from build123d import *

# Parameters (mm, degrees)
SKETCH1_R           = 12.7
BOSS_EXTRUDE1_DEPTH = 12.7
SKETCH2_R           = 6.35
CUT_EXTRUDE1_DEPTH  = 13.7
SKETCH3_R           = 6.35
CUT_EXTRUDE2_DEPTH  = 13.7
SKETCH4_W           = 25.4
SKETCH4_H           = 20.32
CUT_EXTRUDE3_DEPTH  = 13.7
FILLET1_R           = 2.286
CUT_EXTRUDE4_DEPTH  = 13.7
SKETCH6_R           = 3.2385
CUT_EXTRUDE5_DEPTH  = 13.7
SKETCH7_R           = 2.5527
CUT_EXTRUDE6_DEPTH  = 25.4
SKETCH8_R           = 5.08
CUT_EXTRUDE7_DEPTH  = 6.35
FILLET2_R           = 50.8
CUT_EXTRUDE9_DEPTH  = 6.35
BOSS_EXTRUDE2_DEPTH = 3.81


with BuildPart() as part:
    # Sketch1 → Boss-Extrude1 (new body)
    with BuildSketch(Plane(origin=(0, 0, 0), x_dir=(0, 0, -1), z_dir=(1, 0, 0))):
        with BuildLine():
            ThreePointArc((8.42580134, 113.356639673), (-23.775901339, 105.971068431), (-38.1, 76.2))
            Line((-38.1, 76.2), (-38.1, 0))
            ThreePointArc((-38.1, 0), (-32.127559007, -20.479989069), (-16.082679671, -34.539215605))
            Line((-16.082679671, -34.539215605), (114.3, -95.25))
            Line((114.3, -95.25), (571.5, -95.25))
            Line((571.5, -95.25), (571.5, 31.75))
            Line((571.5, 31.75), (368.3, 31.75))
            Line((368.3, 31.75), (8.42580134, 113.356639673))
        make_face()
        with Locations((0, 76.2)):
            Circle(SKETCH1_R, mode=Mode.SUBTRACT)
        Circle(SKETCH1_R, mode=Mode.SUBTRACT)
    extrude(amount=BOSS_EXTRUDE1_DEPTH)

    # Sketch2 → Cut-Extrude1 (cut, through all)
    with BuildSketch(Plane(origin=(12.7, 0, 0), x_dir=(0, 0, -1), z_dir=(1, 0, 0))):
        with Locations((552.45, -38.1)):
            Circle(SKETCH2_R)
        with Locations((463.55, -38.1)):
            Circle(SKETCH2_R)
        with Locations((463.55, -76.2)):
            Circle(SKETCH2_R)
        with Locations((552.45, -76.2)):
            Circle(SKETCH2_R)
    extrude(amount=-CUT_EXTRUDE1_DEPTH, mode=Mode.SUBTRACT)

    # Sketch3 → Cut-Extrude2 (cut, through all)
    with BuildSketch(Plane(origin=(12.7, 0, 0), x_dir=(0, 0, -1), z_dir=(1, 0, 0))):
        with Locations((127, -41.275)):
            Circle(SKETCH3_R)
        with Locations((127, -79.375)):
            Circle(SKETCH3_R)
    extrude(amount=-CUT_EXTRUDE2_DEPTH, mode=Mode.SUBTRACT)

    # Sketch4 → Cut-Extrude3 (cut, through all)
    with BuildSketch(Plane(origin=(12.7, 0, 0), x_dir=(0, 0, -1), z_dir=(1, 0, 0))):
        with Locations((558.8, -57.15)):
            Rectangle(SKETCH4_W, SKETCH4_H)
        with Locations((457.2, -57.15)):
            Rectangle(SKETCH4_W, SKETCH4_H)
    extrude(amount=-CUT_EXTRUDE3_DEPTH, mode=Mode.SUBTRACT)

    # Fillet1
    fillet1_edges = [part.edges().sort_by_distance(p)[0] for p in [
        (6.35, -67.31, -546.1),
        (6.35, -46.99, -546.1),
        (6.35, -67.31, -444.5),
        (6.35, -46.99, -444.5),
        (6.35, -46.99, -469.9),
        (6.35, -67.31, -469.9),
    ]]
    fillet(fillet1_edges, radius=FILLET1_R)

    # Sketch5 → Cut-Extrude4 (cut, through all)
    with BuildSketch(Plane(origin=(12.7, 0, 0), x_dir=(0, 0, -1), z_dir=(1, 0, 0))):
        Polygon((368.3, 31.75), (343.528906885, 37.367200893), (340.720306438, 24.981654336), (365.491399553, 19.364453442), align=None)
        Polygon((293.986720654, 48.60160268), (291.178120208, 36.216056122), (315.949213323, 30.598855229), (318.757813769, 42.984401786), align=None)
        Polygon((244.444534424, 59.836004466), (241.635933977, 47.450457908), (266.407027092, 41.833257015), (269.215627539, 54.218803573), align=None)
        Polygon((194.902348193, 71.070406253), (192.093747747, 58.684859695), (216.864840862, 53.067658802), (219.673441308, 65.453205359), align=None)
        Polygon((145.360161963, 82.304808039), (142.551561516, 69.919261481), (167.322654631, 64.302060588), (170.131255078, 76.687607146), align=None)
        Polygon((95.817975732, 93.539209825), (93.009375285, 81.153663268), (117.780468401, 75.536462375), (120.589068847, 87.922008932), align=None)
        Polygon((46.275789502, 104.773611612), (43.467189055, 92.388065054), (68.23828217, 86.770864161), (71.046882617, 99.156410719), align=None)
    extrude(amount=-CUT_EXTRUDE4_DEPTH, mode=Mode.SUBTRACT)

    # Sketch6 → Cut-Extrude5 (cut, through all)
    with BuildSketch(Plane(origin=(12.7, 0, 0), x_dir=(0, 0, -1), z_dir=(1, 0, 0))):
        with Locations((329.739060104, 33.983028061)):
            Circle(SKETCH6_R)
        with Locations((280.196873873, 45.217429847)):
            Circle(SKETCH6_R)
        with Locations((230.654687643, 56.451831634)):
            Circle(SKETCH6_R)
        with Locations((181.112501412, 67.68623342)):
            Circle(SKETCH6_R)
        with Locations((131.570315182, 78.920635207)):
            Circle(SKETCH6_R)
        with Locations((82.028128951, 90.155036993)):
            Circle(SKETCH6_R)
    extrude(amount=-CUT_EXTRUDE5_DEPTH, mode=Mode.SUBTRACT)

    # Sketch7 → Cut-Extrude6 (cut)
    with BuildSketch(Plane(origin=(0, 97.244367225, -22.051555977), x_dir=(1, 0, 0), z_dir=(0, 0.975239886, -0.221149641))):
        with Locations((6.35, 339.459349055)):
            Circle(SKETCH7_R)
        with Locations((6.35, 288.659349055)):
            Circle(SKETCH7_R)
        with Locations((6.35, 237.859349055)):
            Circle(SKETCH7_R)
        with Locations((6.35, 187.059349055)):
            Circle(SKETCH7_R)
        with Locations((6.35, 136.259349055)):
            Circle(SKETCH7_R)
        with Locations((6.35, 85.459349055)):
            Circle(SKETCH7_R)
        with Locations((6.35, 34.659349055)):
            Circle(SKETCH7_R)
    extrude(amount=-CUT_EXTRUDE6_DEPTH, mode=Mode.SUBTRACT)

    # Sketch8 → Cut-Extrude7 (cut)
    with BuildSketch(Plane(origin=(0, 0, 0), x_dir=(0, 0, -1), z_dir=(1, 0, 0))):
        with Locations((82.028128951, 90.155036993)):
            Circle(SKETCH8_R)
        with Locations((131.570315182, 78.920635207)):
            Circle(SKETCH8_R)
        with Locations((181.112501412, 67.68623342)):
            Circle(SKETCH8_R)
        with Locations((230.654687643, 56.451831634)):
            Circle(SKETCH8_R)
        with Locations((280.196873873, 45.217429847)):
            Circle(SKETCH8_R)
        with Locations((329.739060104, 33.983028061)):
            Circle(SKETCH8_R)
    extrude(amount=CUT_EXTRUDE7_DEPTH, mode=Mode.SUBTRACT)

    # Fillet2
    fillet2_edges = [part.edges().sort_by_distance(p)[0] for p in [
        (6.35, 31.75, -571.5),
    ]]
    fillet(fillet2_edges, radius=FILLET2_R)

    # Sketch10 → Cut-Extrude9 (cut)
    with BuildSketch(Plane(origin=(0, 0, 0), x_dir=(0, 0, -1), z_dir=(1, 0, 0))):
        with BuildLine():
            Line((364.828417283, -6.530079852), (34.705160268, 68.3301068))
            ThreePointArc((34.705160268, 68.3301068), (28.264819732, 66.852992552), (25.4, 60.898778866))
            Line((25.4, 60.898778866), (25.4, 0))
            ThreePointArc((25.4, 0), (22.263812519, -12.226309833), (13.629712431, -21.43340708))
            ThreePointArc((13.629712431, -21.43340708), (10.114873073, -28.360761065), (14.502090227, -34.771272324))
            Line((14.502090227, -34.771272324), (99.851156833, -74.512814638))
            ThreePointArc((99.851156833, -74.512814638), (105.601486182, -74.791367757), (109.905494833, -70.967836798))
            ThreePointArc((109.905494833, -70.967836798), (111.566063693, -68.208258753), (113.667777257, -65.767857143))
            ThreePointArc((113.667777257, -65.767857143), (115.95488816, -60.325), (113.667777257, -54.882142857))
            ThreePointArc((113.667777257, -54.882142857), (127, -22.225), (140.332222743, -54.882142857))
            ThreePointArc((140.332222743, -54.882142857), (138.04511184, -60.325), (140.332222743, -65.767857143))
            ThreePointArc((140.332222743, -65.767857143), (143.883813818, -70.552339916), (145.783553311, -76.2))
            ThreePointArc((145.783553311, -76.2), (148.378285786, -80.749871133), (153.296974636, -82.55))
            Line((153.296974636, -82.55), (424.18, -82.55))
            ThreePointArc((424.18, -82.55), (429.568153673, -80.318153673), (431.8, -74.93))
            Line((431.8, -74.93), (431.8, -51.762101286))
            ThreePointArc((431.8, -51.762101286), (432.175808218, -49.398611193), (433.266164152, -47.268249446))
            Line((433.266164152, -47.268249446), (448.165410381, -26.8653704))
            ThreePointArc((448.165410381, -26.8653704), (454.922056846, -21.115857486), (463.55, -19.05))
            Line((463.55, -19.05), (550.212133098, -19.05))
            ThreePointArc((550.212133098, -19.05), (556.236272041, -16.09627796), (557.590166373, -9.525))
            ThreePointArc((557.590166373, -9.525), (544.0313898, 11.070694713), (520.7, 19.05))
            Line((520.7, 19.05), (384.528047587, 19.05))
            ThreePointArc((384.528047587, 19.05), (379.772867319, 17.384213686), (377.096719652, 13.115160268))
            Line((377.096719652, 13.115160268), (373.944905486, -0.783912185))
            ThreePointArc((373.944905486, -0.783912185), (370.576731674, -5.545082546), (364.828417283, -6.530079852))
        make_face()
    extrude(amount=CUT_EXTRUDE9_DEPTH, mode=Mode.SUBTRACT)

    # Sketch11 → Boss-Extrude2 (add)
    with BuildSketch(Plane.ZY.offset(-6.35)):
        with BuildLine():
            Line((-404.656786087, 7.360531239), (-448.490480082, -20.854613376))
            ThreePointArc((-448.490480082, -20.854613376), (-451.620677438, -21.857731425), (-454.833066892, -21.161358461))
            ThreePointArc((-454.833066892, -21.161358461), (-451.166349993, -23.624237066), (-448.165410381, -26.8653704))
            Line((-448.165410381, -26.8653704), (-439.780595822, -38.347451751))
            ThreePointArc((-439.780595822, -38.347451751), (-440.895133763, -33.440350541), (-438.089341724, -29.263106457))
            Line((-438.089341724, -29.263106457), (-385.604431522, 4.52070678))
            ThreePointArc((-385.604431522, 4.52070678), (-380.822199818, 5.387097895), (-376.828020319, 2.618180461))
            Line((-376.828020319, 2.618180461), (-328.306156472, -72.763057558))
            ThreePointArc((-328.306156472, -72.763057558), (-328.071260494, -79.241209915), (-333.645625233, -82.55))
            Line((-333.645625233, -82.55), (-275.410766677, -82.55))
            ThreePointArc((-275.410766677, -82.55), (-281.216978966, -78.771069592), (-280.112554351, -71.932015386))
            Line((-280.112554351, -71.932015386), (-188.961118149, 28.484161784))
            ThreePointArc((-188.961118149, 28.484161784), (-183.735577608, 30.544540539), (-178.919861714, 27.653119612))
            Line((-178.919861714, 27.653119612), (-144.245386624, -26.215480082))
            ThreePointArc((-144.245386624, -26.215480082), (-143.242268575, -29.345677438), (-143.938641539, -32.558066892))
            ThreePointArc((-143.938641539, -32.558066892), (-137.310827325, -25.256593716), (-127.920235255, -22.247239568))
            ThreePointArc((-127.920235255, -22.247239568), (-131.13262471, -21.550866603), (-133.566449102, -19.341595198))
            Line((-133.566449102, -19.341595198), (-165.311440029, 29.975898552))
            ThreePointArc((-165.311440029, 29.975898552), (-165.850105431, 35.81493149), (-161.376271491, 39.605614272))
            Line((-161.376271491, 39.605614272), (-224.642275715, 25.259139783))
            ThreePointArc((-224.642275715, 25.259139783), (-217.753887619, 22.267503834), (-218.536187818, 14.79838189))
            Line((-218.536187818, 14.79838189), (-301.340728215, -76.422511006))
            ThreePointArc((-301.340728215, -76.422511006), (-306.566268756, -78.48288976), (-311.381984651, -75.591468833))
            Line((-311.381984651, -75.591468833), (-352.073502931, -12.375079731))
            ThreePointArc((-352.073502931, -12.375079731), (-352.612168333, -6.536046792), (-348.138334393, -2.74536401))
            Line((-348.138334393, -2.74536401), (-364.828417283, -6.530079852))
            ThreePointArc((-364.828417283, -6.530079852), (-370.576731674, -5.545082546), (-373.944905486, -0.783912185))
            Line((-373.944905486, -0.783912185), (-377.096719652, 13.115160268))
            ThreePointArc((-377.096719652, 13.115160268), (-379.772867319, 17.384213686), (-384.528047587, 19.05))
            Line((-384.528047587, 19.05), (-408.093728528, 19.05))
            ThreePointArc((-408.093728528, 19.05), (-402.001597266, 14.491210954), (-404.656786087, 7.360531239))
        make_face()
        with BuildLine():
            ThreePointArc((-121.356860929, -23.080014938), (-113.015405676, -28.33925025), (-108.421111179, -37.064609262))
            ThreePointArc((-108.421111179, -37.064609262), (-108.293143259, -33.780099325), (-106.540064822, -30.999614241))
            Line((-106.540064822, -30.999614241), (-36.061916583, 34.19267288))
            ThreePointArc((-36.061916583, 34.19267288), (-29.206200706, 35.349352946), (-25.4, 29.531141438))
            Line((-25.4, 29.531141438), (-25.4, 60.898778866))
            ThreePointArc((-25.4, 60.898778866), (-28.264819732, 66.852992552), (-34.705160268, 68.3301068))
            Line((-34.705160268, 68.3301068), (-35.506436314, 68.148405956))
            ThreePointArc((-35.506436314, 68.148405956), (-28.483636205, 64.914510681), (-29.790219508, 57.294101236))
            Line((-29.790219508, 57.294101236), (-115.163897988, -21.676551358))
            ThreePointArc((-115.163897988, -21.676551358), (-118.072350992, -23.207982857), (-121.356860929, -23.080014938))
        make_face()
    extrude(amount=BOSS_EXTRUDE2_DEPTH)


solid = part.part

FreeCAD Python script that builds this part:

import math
import FreeCAD as App
import Part
import Sketcher
Q = App.Units.Quantity


def edges_at(feature, points):
    """Names of the edges that pass closest to the given points."""
    edges = feature.Shape.Edges
    near = lambda p: min(range(len(edges)), key=lambda i: edges[i].distToShape(Part.Vertex(*p))[0])
    return sorted({f"Edge{near(p) + 1}" for p in points})

doc = App.newDocument("Part")
body = doc.addObject("PartDesign::Body", "Body")

# Sketch on YZ plane
sketch1 = body.newObject("Sketcher::SketchObject", "Sketch")
sketch1.AttachmentSupport = (doc.getObject("YZ_Plane"), [""])
sketch1.MapMode = "FlatFace"
sketch1.addGeometry([
    Part.ArcOfCircle(Part.Circle(App.Vector(76.2, 0, 0), App.Vector(0, 0, 1), 38.1), math.radians(-12.776566), math.radians(90)),  # 0
    Part.LineSegment(App.Vector(76.2, 38.1, 0), App.Vector(0, 38.1, 0)),  # 1
    Part.ArcOfCircle(Part.Circle(App.Vector(0, 0, 0), App.Vector(0, 0, 1), 38.1), math.radians(90), math.radians(155.031649)),  # 2
    Part.LineSegment(App.Vector(-34.539216, 16.08268, 0), App.Vector(-95.25, -114.3, 0)),  # 3
    Part.LineSegment(App.Vector(-95.25, -114.3, 0), App.Vector(-95.25, -571.5, 0)),  # 4
    Part.LineSegment(App.Vector(-95.25, -571.5, 0), App.Vector(31.75, -571.5, 0)),  # 5
    Part.LineSegment(App.Vector(31.75, -571.5, 0), App.Vector(31.75, -368.3, 0)),  # 6
    Part.LineSegment(App.Vector(31.75, -368.3, 0), App.Vector(113.35664, -8.425801, 0)),  # 7
    Part.Circle(App.Vector(0, 0, 0), App.Vector(0, 0, 1), 12.7),  # 8
    Part.Circle(App.Vector(76.2, 0, 0), App.Vector(0, 0, 1), 12.7),  # 9
], False)
sketch1.addConstraint([
    Sketcher.Constraint("Tangent", 0, 2, 1, 1),
    Sketcher.Constraint("Tangent", 1, 2, 2, 1),
    Sketcher.Constraint("Tangent", 2, 2, 3, 1),
    Sketcher.Constraint("Coincident", 3, 2, 4, 1),
    Sketcher.Constraint("Coincident", 4, 2, 5, 1),
    Sketcher.Constraint("Coincident", 5, 2, 6, 1),
    Sketcher.Constraint("Coincident", 6, 2, 7, 1),
    Sketcher.Constraint("Tangent", 7, 2, 0, 1),
    Sketcher.Constraint("Horizontal", 1),
    Sketcher.Constraint("Vertical", 4),
    Sketcher.Constraint("Horizontal", 5),
    Sketcher.Constraint("Vertical", 6),
    Sketcher.Constraint("Coincident", 2, 3, -1, 1),
    Sketcher.Constraint("Coincident", 8, 3, -1, 1),
    Sketcher.Constraint("Coincident", 9, 3, 0, 3),
    Sketcher.Constraint("Equal", 0, 2),
    Sketcher.Constraint("Equal", 8, 9),
    Sketcher.Constraint("Diameter", 8, Q("1 in")),
    Sketcher.Constraint("Radius", 0, Q("1.5 in")),
    Sketcher.Constraint("DistanceX", 1, 2, 1, 1, Q("3 in")),
    Sketcher.Constraint("DistanceX", 5, 1, 5, 2, Q("5 in")),
    Sketcher.Constraint("DistanceY", 4, 2, 4, 1, Q("18 in")),
    Sketcher.Constraint("DistanceY", 6, 1, 6, 2, Q("8 in")),
    Sketcher.Constraint("DistanceY", 3, 2, 1, 2, Q("6 in")),
    Sketcher.Constraint("DistanceX", 3, 2, -1, 1, Q("3.75 in")),
])
pad1 = body.newObject("PartDesign::Pad", "Pad")
pad1.Profile = sketch1
pad1.Length = Q("0.5 in")

# Sketch on YZ plane
sketch2 = body.newObject("Sketcher::SketchObject", "Sketch001")
sketch2.AttachmentSupport = (doc.getObject("YZ_Plane"), [""])
sketch2.MapMode = "FlatFace"
sketch2.AttachmentOffset = App.Placement(App.Vector(0, 0, 0.5 * 25.4), App.Rotation())
sketch2.addGeometry([
    Part.Circle(App.Vector(-38.1, -552.45, 0), App.Vector(0, 0, 1), 6.35),
    Part.Circle(App.Vector(-38.1, -463.55, 0), App.Vector(0, 0, 1), 6.35),
    Part.Circle(App.Vector(-76.2, -463.55, 0), App.Vector(0, 0, 1), 6.35),
    Part.Circle(App.Vector(-76.2, -552.45, 0), App.Vector(0, 0, 1), 6.35),
], False)
sketch2.addConstraint([
    Sketcher.Constraint("Equal", 0, 1),
    Sketcher.Constraint("Equal", 1, 2),
    Sketcher.Constraint("Equal", 2, 3),
    Sketcher.Constraint("Horizontal", 1, 3, 2, 3),
    Sketcher.Constraint("Horizontal", 0, 3, 3, 3),
    Sketcher.Constraint("Vertical", 0, 3, 1, 3),
    Sketcher.Constraint("Vertical", 2, 3, 3, 3),
    Sketcher.Constraint("Diameter", 0, Q("0.5 in")),
    Sketcher.Constraint("DistanceX", 2, 3, -1, 1, Q("3 in")),
    Sketcher.Constraint("DistanceX", 0, 3, -1, 1, Q("1.5 in")),
    Sketcher.Constraint("DistanceY", 0, 3, 1, 3, Q("3.5 in")),
    Sketcher.Constraint("DistanceY", 0, 3, -1, 1, Q("21.75 in")),
])
pocket1 = body.newObject("PartDesign::Pocket", "Pocket")
pocket1.Profile = sketch2
pocket1.Type = "ThroughAll"

# Sketch on YZ plane
sketch3 = body.newObject("Sketcher::SketchObject", "Sketch002")
sketch3.AttachmentSupport = (doc.getObject("YZ_Plane"), [""])
sketch3.MapMode = "FlatFace"
sketch3.AttachmentOffset = App.Placement(App.Vector(0, 0, 0.5 * 25.4), App.Rotation())
sketch3.addGeometry([
    Part.Circle(App.Vector(-41.275, -127, 0), App.Vector(0, 0, 1), 6.35),
    Part.Circle(App.Vector(-79.375, -127, 0), App.Vector(0, 0, 1), 6.35),
], False)
sketch3.addConstraint([
    Sketcher.Constraint("Equal", 0, 1),
    Sketcher.Constraint("Horizontal", 0, 3, 1, 3),
    Sketcher.Constraint("Diameter", 0, Q("0.5 in")),
    Sketcher.Constraint("DistanceY", 0, 3, -1, 1, Q("5 in")),
    Sketcher.Constraint("DistanceX", 1, 3, 0, 3, Q("1.5 in")),
    Sketcher.Constraint("DistanceX", 0, 3, -1, 1, Q("1.625 in")),
])
pocket2 = body.newObject("PartDesign::Pocket", "Pocket001")
pocket2.Profile = sketch3
pocket2.Type = "ThroughAll"

# Sketch on YZ plane
sketch4 = body.newObject("Sketcher::SketchObject", "Sketch003")
sketch4.AttachmentSupport = (doc.getObject("YZ_Plane"), [""])
sketch4.MapMode = "FlatFace"
sketch4.AttachmentOffset = App.Placement(App.Vector(0, 0, 0.5 * 25.4), App.Rotation())
sketch4.addGeometry([
    Part.LineSegment(App.Vector(-46.99, -546.1, 0), App.Vector(-67.31, -546.1, 0)),  # 0
    Part.LineSegment(App.Vector(-67.31, -546.1, 0), App.Vector(-67.31, -571.5, 0)),  # 1
    Part.LineSegment(App.Vector(-67.31, -571.5, 0), App.Vector(-46.99, -571.5, 0)),  # 2
    Part.LineSegment(App.Vector(-46.99, -571.5, 0), App.Vector(-46.99, -546.1, 0)),  # 3
    Part.LineSegment(App.Vector(-46.99, -444.5, 0), App.Vector(-67.31, -444.5, 0)),  # 4
    Part.LineSegment(App.Vector(-67.31, -444.5, 0), App.Vector(-67.31, -469.9, 0)),  # 5
    Part.LineSegment(App.Vector(-67.31, -469.9, 0), App.Vector(-46.99, -469.9, 0)),  # 6
    Part.LineSegment(App.Vector(-46.99, -469.9, 0), App.Vector(-46.99, -444.5, 0)),  # 7
], False)
sketch4.addConstraint([
    Sketcher.Constraint("Coincident", 0, 2, 1, 1),
    Sketcher.Constraint("Coincident", 1, 2, 2, 1),
    Sketcher.Constraint("Coincident", 2, 2, 3, 1),
    Sketcher.Constraint("Coincident", 3, 2, 0, 1),
    Sketcher.Constraint("Coincident", 4, 2, 5, 1),
    Sketcher.Constraint("Coincident", 5, 2, 6, 1),
    Sketcher.Constraint("Coincident", 6, 2, 7, 1),
    Sketcher.Constraint("Coincident", 7, 2, 4, 1),
    Sketcher.Constraint("Horizontal", 0),
    Sketcher.Constraint("Vertical", 1),
    Sketcher.Constraint("Horizontal", 2),
    Sketcher.Constraint("Vertical", 3),
    Sketcher.Constraint("Horizontal", 4),
    Sketcher.Constraint("Vertical", 5),
    Sketcher.Constraint("Horizontal", 6),
    Sketcher.Constraint("Vertical", 7),
    Sketcher.Constraint("Vertical", 1, 2, 4, 2),
    Sketcher.Constraint("Vertical", 3, 2, 6, 2),
    Sketcher.Constraint("Equal", 3, 5),
    Sketcher.Constraint("DistanceY", 1, 2, 1, 1, Q("1 in")),
    Sketcher.Constraint("DistanceX", 0, 2, 0, 1, Q("0.8 in")),
    Sketcher.Constraint("DistanceY", 0, 2, 4, 2, Q("4 in")),
    Sketcher.Constraint("DistanceY", 0, 2, -1, 1, Q("21.5 in")),
    Sketcher.Constraint("DistanceX", 0, 2, -1, 1, Q("2.65 in")),
])
pocket3 = body.newObject("PartDesign::Pocket", "Pocket002")
pocket3.Profile = sketch4
pocket3.Type = "ThroughAll"
doc.recompute()

fillet = body.newObject("PartDesign::Fillet", "Fillet")
fillet.Base = (pocket3, edges_at(pocket3, [
    (6.35, -67.31, -546.1),
    (6.35, -46.99, -546.1),
    (6.35, -67.31, -444.5),
    (6.35, -46.99, -444.5),
    (6.35, -46.99, -469.9),
    (6.35, -67.31, -469.9),
]))
fillet.Radius = Q("0.09 in")

# Sketch on YZ plane
sketch5 = body.newObject("Sketcher::SketchObject", "Sketch004")
sketch5.AttachmentSupport = (doc.getObject("YZ_Plane"), [""])
sketch5.MapMode = "FlatFace"
sketch5.AttachmentOffset = App.Placement(App.Vector(0, 0, 0.5 * 25.4), App.Rotation())
sketch5.addGeometry([
    Part.LineSegment(App.Vector(31.75, -368.3, 0), App.Vector(37.367201, -343.528907, 0)),  # 0
    Part.LineSegment(App.Vector(37.367201, -343.528907, 0), App.Vector(24.981654, -340.720306, 0)),  # 1
    Part.LineSegment(App.Vector(24.981654, -340.720306, 0), App.Vector(19.364453, -365.4914, 0)),  # 2
    Part.LineSegment(App.Vector(19.364453, -365.4914, 0), App.Vector(31.75, -368.3, 0)),  # 3
    Part.LineSegment(App.Vector(48.601603, -293.986721, 0), App.Vector(36.216056, -291.17812, 0)),  # 4
    Part.LineSegment(App.Vector(36.216056, -291.17812, 0), App.Vector(30.598855, -315.949213, 0)),  # 5
    Part.LineSegment(App.Vector(30.598855, -315.949213, 0), App.Vector(42.984402, -318.757814, 0)),  # 6
    Part.LineSegment(App.Vector(42.984402, -318.757814, 0), App.Vector(48.601603, -293.986721, 0)),  # 7
    Part.LineSegment(App.Vector(59.836004, -244.444534, 0), App.Vector(47.450458, -241.635934, 0)),  # 8
    Part.LineSegment(App.Vector(47.450458, -241.635934, 0), App.Vector(41.833257, -266.407027, 0)),  # 9
    Part.LineSegment(App.Vector(41.833257, -266.407027, 0), App.Vector(54.218804, -269.215628, 0)),  # 10
    Part.LineSegment(App.Vector(54.218804, -269.215628, 0), App.Vector(59.836004, -244.444534, 0)),  # 11
    Part.LineSegment(App.Vector(71.070406, -194.902348, 0), App.Vector(58.68486, -192.093748, 0)),  # 12
    Part.LineSegment(App.Vector(58.68486, -192.093748, 0), App.Vector(53.067659, -216.864841, 0)),  # 13
    Part.LineSegment(App.Vector(53.067659, -216.864841, 0), App.Vector(65.453205, -219.673441, 0)),  # 14
    Part.LineSegment(App.Vector(65.453205, -219.673441, 0), App.Vector(71.070406, -194.902348, 0)),  # 15
    Part.LineSegment(App.Vector(82.304808, -145.360162, 0), App.Vector(69.919261, -142.551562, 0)),  # 16
    Part.LineSegment(App.Vector(69.919261, -142.551562, 0), App.Vector(64.302061, -167.322655, 0)),  # 17
    Part.LineSegment(App.Vector(64.302061, -167.322655, 0), App.Vector(76.687607, -170.131255, 0)),  # 18
    Part.LineSegment(App.Vector(76.687607, -170.131255, 0), App.Vector(82.304808, -145.360162, 0)),  # 19
    Part.LineSegment(App.Vector(93.53921, -95.817976, 0), App.Vector(81.153663, -93.009375, 0)),  # 20
    Part.LineSegment(App.Vector(81.153663, -93.009375, 0), App.Vector(75.536462, -117.780468, 0)),  # 21
    Part.LineSegment(App.Vector(75.536462, -117.780468, 0), App.Vector(87.922009, -120.589069, 0)),  # 22
    Part.LineSegment(App.Vector(87.922009, -120.589069, 0), App.Vector(93.53921, -95.817976, 0)),  # 23
    Part.LineSegment(App.Vector(104.773612, -46.27579, 0), App.Vector(92.388065, -43.467189, 0)),  # 24
    Part.LineSegment(App.Vector(92.388065, -43.467189, 0), App.Vector(86.770864, -68.238282, 0)),  # 25
    Part.LineSegment(App.Vector(86.770864, -68.238282, 0), App.Vector(99.156411, -71.046883, 0)),  # 26
    Part.LineSegment(App.Vector(99.156411, -71.046883, 0), App.Vector(104.773612, -46.27579, 0)),  # 27
], False)
sketch5.addConstraint([
    Sketcher.Constraint("Coincident", 0, 2, 1, 1),
    Sketcher.Constraint("Coincident", 1, 2, 2, 1),
    Sketcher.Constraint("Coincident", 2, 2, 3, 1),
    Sketcher.Constraint("Coincident", 3, 2, 0, 1),
    Sketcher.Constraint("Coincident", 4, 2, 5, 1),
    Sketcher.Constraint("Coincident", 5, 2, 6, 1),
    Sketcher.Constraint("Coincident", 6, 2, 7, 1),
    Sketcher.Constraint("Coincident", 7, 2, 4, 1),
    Sketcher.Constraint("Coincident", 8, 2, 9, 1),
    Sketcher.Constraint("Coincident", 9, 2, 10, 1),
    Sketcher.Constraint("Coincident", 10, 2, 11, 1),
    Sketcher.Constraint("Coincident", 11, 2, 8, 1),
    Sketcher.Constraint("Coincident", 12, 2, 13, 1),
    Sketcher.Constraint("Coincident", 13, 2, 14, 1),
    Sketcher.Constraint("Coincident", 14, 2, 15, 1),
    Sketcher.Constraint("Coincident", 15, 2, 12, 1),
    Sketcher.Constraint("Coincident", 16, 2, 17, 1),
    Sketcher.Constraint("Coincident", 17, 2, 18, 1),
    Sketcher.Constraint("Coincident", 18, 2, 19, 1),
    Sketcher.Constraint("Coincident", 19, 2, 16, 1),
    Sketcher.Constraint("Coincident", 20, 2, 21, 1),
    Sketcher.Constraint("Coincident", 21, 2, 22, 1),
    Sketcher.Constraint("Coincident", 22, 2, 23, 1),
    Sketcher.Constraint("Coincident", 23, 2, 20, 1),
    Sketcher.Constraint("Coincident", 24, 2, 25, 1),
    Sketcher.Constraint("Coincident", 25, 2, 26, 1),
    Sketcher.Constraint("Coincident", 26, 2, 27, 1),
    Sketcher.Constraint("Coincident", 27, 2, 24, 1),
    Sketcher.Constraint("Perpendicular", 0, 1),
    Sketcher.Constraint("Perpendicular", 1, 2),
    Sketcher.Constraint("Perpendicular", 2, 3),
    Sketcher.Constraint("Parallel", 3, 4),
    Sketcher.Constraint("Perpendicular", 4, 5),
    Sketcher.Constraint("Perpendicular", 5, 6),
    Sketcher.Constraint("Perpendicular", 6, 7),
    Sketcher.Constraint("Perpendicular", 7, 8),
    Sketcher.Constraint("Perpendicular", 8, 9),
    Sketcher.Constraint("Perpendicular", 9, 10),
    Sketcher.Constraint("Perpendicular", 10, 11),
    Sketcher.Constraint("Perpendicular", 11, 12),
    Sketcher.Constraint("Perpendicular", 12, 13),
    Sketcher.Constraint("Perpendicular", 13, 14),
    Sketcher.Constraint("Perpendicular", 14, 15),
    Sketcher.Constraint("Perpendicular", 15, 16),
    Sketcher.Constraint("Perpendicular", 16, 17),
    Sketcher.Constraint("Perpendicular", 17, 18),
    Sketcher.Constraint("Perpendicular", 18, 19),
    Sketcher.Constraint("Perpendicular", 19, 20),
    Sketcher.Constraint("Perpendicular", 20, 21),
    Sketcher.Constraint("Perpendicular", 21, 22),
    Sketcher.Constraint("Perpendicular", 22, 23),
    Sketcher.Constraint("Perpendicular", 23, 24),
    Sketcher.Constraint("Perpendicular", 24, 25),
    Sketcher.Constraint("Perpendicular", 25, 26),
    Sketcher.Constraint("Perpendicular", 26, 27),
    Sketcher.Constraint("Equal", 3, 4),
    Sketcher.Constraint("Equal", 2, 5),
    Sketcher.Constraint("Equal", 6, 8),
    Sketcher.Constraint("Equal", 7, 9),
    Sketcher.Constraint("Equal", 10, 12),
    Sketcher.Constraint("Equal", 11, 13),
    Sketcher.Constraint("Equal", 14, 16),
    Sketcher.Constraint("Equal", 15, 17),
    Sketcher.Constraint("Equal", 18, 20),
    Sketcher.Constraint("Equal", 19, 21),
    Sketcher.Constraint("Equal", 22, 24),
    Sketcher.Constraint("Equal", 23, 25),
    Sketcher.Constraint("Distance", 0, Q("1 in")),
    Sketcher.Constraint("Distance", 1, Q("0.5 in")),
    Sketcher.Constraint("DistanceY", 3, 2, -1, 1, Q("14.5 in")),
    Sketcher.Constraint("DistanceX", -1, 1, 3, 2, Q("1.25 in")),
    Sketcher.Constraint("DistanceX", -1, 1, 0, 2, Q("37.367201 mm")),
    Sketcher.Constraint("DistanceX", -1, 1, 6, 2, Q("42.984402 mm")),
    Sketcher.Constraint("DistanceX", 4, 2, 8, 2, Q("11.234402 mm")),
    Sketcher.Constraint("DistanceX", 8, 2, 12, 2, Q("11.234402 mm")),
    Sketcher.Constraint("DistanceX", 12, 2, 16, 2, Q("11.234402 mm")),
    Sketcher.Constraint("DistanceX", 16, 2, 20, 2, Q("11.234402 mm")),
    Sketcher.Constraint("DistanceX", 20, 2, 24, 2, Q("11.234402 mm")),
    Sketcher.Constraint("DistanceY", 4, 2, -1, 1, Q("291.17812 mm")),
    Sketcher.Constraint("DistanceY", 13, 2, -1, 1, Q("216.864841 mm")),
    Sketcher.Constraint("DistanceY", 16, 2, -1, 1, Q("142.551562 mm")),
    Sketcher.Constraint("DistanceY", 21, 2, -1, 1, Q("117.780468 mm")),
    Sketcher.Constraint("DistanceY", 24, 2, -1, 1, Q("43.467189 mm")),
    Sketcher.Constraint("DistanceY", 5, 2, 8, 2, Q("74.313279 mm")),
])
pocket4 = body.newObject("PartDesign::Pocket", "Pocket003")
pocket4.Profile = sketch5
pocket4.Type = "ThroughAll"

# Sketch on YZ plane
sketch6 = body.newObject("Sketcher::SketchObject", "Sketch005")
sketch6.AttachmentSupport = (doc.getObject("YZ_Plane"), [""])
sketch6.MapMode = "FlatFace"
sketch6.AttachmentOffset = App.Placement(App.Vector(0, 0, 0.5 * 25.4), App.Rotation())
sketch6.addGeometry([
    Part.Circle(App.Vector(33.983028, -329.73906, 0), App.Vector(0, 0, 1), 3.2385),  # 0
    Part.Circle(App.Vector(45.21743, -280.196874, 0), App.Vector(0, 0, 1), 3.2385),  # 1
    Part.Circle(App.Vector(56.451832, -230.654688, 0), App.Vector(0, 0, 1), 3.2385),  # 2
    Part.Circle(App.Vector(67.686233, -181.112501, 0), App.Vector(0, 0, 1), 3.2385),  # 3
    Part.Circle(App.Vector(78.920635, -131.570315, 0), App.Vector(0, 0, 1), 3.2385),  # 4
    Part.Circle(App.Vector(90.155037, -82.028129, 0), App.Vector(0, 0, 1), 3.2385),  # 5
], False)
sketch6.addConstraint([
    Sketcher.Constraint("Equal", 0, 1),
    Sketcher.Constraint("Equal", 1, 2),
    Sketcher.Constraint("Equal", 2, 3),
    Sketcher.Constraint("Equal", 3, 4),
    Sketcher.Constraint("Equal", 4, 5),
    Sketcher.Constraint("Diameter", 0, Q("0.255 in")),
    Sketcher.Constraint("DistanceY", 3, 3, -1, 1, Q("181.112501 mm")),
    Sketcher.Constraint("DistanceX", 0, 3, 1, 3, Q("11.234402 mm")),
    Sketcher.Constraint("DistanceX", 1, 3, 2, 3, Q("11.234402 mm")),
    Sketcher.Constraint("DistanceX", 2, 3, 3, 3, Q("11.234402 mm")),
    Sketcher.Constraint("DistanceX", 3, 3, 4, 3, Q("11.234402 mm")),
    Sketcher.Constraint("DistanceX", 4, 3, 5, 3, Q("11.234402 mm")),
    Sketcher.Constraint("DistanceX", -1, 1, 0, 3, Q("33.983028 mm")),
    Sketcher.Constraint("DistanceY", 0, 3, -1, 1, Q("329.73906 mm")),
    Sketcher.Constraint("DistanceY", 5, 3, -1, 1, Q("82.028129 mm")),
    Sketcher.Constraint("DistanceY", 1, 3, 4, 3, Q("148.626559 mm")),
    Sketcher.Constraint("DistanceY", 2, 3, 5, 3, Q("148.626559 mm")),
    Sketcher.Constraint("DistanceY", 1, 3, -1, 1, Q("280.196874 mm")),
])
pocket5 = body.newObject("PartDesign::Pocket", "Pocket004")
pocket5.Profile = sketch6
pocket5.Type = "ThroughAll"

# Sketch on an angled plane
sketch7 = body.newObject("Sketcher::SketchObject", "Sketch006")
sketch7.Placement = App.Placement(App.Vector(0, 97.244367, -22.051556), App.Rotation(App.Vector(1, 0, 0), App.Vector(0, -0.221149641, -0.975239887), App.Vector(0, 0.975239887, -0.221149641), "ZXY"))
sketch7.addGeometry([
    Part.Circle(App.Vector(6.35, 339.459349, 0), App.Vector(0, 0, 1), 2.5527),  # 0
    Part.Circle(App.Vector(6.35, 288.659349, 0), App.Vector(0, 0, 1), 2.5527),  # 1
    Part.Circle(App.Vector(6.35, 237.859349, 0), App.Vector(0, 0, 1), 2.5527),  # 2
    Part.Circle(App.Vector(6.35, 187.059349, 0), App.Vector(0, 0, 1), 2.5527),  # 3
    Part.Circle(App.Vector(6.35, 136.259349, 0), App.Vector(0, 0, 1), 2.5527),  # 4
    Part.Circle(App.Vector(6.35, 85.459349, 0), App.Vector(0, 0, 1), 2.5527),  # 5
    Part.Circle(App.Vector(6.35, 34.659349, 0), App.Vector(0, 0, 1), 2.5527),  # 6
], False)
sketch7.addConstraint([
    Sketcher.Constraint("Equal", 0, 1),
    Sketcher.Constraint("Equal", 1, 2),
    Sketcher.Constraint("Equal", 2, 3),
    Sketcher.Constraint("Equal", 3, 4),
    Sketcher.Constraint("Equal", 4, 5),
    Sketcher.Constraint("Equal", 5, 6),
    Sketcher.Constraint("Vertical", 0, 3, 1, 3),
    Sketcher.Constraint("Vertical", 1, 3, 2, 3),
    Sketcher.Constraint("Vertical", 2, 3, 3, 3),
    Sketcher.Constraint("Vertical", 3, 3, 4, 3),
    Sketcher.Constraint("Vertical", 4, 3, 5, 3),
    Sketcher.Constraint("Vertical", 5, 3, 6, 3),
    Sketcher.Constraint("Diameter", 0, Q("0.201 in")),
    Sketcher.Constraint("DistanceY", 1, 3, 0, 3, Q("2 in")),
    Sketcher.Constraint("DistanceY", 2, 3, 1, 3, Q("2 in")),
    Sketcher.Constraint("DistanceY", 3, 3, 2, 3, Q("2 in")),
    Sketcher.Constraint("DistanceY", 4, 3, 3, 3, Q("2 in")),
    Sketcher.Constraint("DistanceY", 5, 3, 4, 3, Q("2 in")),
    Sketcher.Constraint("DistanceY", 6, 3, 5, 3, Q("2 in")),
    Sketcher.Constraint("DistanceX", -1, 1, 0, 3, Q("0.25 in")),
    Sketcher.Constraint("DistanceY", -1, 1, 0, 3, Q("339.459349 mm")),
])
pocket6 = body.newObject("PartDesign::Pocket", "Pocket005")
pocket6.Profile = sketch7
pocket6.Length = Q("1 in")

# Sketch on YZ plane
sketch8 = body.newObject("Sketcher::SketchObject", "Sketch007")
sketch8.AttachmentSupport = (doc.getObject("YZ_Plane"), [""])
sketch8.MapMode = "FlatFace"
sketch8.addGeometry([
    Part.Circle(App.Vector(90.155037, -82.028129, 0), App.Vector(0, 0, 1), 5.08),  # 0
    Part.Circle(App.Vector(78.920635, -131.570315, 0), App.Vector(0, 0, 1), 5.08),  # 1
    Part.Circle(App.Vector(67.686233, -181.112501, 0), App.Vector(0, 0, 1), 5.08),  # 2
    Part.Circle(App.Vector(56.451832, -230.654688, 0), App.Vector(0, 0, 1), 5.08),  # 3
    Part.Circle(App.Vector(45.21743, -280.196874, 0), App.Vector(0, 0, 1), 5.08),  # 4
    Part.Circle(App.Vector(33.983028, -329.73906, 0), App.Vector(0, 0, 1), 5.08),  # 5
], False)
sketch8.addConstraint([
    Sketcher.Constraint("Equal", 0, 1),
    Sketcher.Constraint("Equal", 1, 2),
    Sketcher.Constraint("Equal", 2, 3),
    Sketcher.Constraint("Equal", 3, 4),
    Sketcher.Constraint("Equal", 4, 5),
    Sketcher.Constraint("Diameter", 0, Q("0.4 in")),
    Sketcher.Constraint("DistanceY", 2, 3, -1, 1, Q("181.112501 mm")),
    Sketcher.Constraint("DistanceX", 1, 3, 0, 3, Q("11.234402 mm")),
    Sketcher.Constraint("DistanceX", 2, 3, 1, 3, Q("11.234402 mm")),
    Sketcher.Constraint("DistanceX", 3, 3, 2, 3, Q("11.234402 mm")),
    Sketcher.Constraint("DistanceX", 4, 3, 3, 3, Q("11.234402 mm")),
    Sketcher.Constraint("DistanceX", 5, 3, 4, 3, Q("11.234402 mm")),
    Sketcher.Constraint("DistanceY", 0, 3, -1, 1, Q("82.028129 mm")),
    Sketcher.Constraint("DistanceX", -1, 1, 3, 3, Q("56.451832 mm")),
    Sketcher.Constraint("DistanceY", 5, 3, -1, 1, Q("329.73906 mm")),
    Sketcher.Constraint("DistanceY", 3, 3, 0, 3, Q("148.626559 mm")),
    Sketcher.Constraint("DistanceY", 4, 3, 1, 3, Q("148.626559 mm")),
    Sketcher.Constraint("DistanceY", 1, 3, -1, 1, Q("131.570315 mm")),
])
pocket7 = body.newObject("PartDesign::Pocket", "Pocket006")
pocket7.Profile = sketch8
pocket7.Length = Q("0.25 in")
pocket7.Reversed = True
doc.recompute()

fillet2 = body.newObject("PartDesign::Fillet", "Fillet001")
fillet2.Base = (pocket7, edges_at(pocket7, [(6.35, 31.75, -571.5)]))
fillet2.Radius = Q("2 in")

# Sketch on YZ plane
sketch9 = body.newObject("Sketcher::SketchObject", "Sketch008")
sketch9.AttachmentSupport = (doc.getObject("YZ_Plane"), [""])
sketch9.MapMode = "FlatFace"
sketch9.addGeometry([
    Part.LineSegment(App.Vector(-6.53008, -364.828417, 0), App.Vector(68.330107, -34.70516, 0)),  # 0
    Part.ArcOfCircle(Part.Circle(App.Vector(60.898779, -33.02, 0), App.Vector(0, 0, 1), 7.62), math.radians(-12.776566), math.radians(90)),  # 1
    Part.LineSegment(App.Vector(60.898779, -25.4, 0), App.Vector(0, -25.4, 0)),  # 2
    Part.ArcOfCircle(Part.Circle(App.Vector(0, 0, 0), App.Vector(0, 0, 1), 25.4), math.radians(-147.547322), math.radians(-90)),  # 3
    Part.ArcOfCircle(Part.Circle(App.Vector(-27.863429, -17.718626, 0), App.Vector(0, 0, 1), 7.62), math.radians(32.452678), math.radians(155.031649)),  # 4
    Part.LineSegment(App.Vector(-34.771272, -14.50209, 0), App.Vector(-74.512815, -99.851157, 0)),  # 5
    Part.ArcOfCircle(Part.Circle(App.Vector(-67.604972, -103.067693, 0), App.Vector(0, 0, 1), 7.62), math.radians(155.031649), math.radians(243.81181)),  # 6
    Part.ArcOfCircle(Part.Circle(App.Vector(-79.375, -127, 0), App.Vector(0, 0, 1), 19.05), math.radians(44.415309), math.radians(63.81181)),  # 7
    Part.ArcOfCircle(Part.Circle(App.Vector(-60.325, -108.334888, 0), App.Vector(0, 0, 1), 7.62), math.radians(-135.584691), math.radians(-44.415309)),  # 8
    Part.ArcOfCircle(Part.Circle(App.Vector(-41.275, -127, 0), App.Vector(0, 0, 1), 19.05), math.radians(-135.584691), math.radians(135.584691)),  # 9
    Part.ArcOfCircle(Part.Circle(App.Vector(-60.325, -145.665112, 0), App.Vector(0, 0, 1), 7.62), math.radians(44.415309), math.radians(135.584691)),  # 10
    Part.ArcOfCircle(Part.Circle(App.Vector(-79.375, -127, 0), App.Vector(0, 0, 1), 19.05), math.radians(-80.405932), math.radians(-44.415309)),  # 11
    Part.ArcOfCircle(Part.Circle(App.Vector(-74.93, -153.296975, 0), App.Vector(0, 0, 1), 7.62), math.radians(99.594068), math.radians(180)),  # 12
    Part.LineSegment(App.Vector(-82.55, -153.296975, 0), App.Vector(-82.55, -424.18, 0)),  # 13
    Part.ArcOfCircle(Part.Circle(App.Vector(-74.93, -424.18, 0), App.Vector(0, 0, 1), 7.62), math.radians(180), math.radians(270)),  # 14
    Part.LineSegment(App.Vector(-74.93, -431.8, 0), App.Vector(-51.762101, -431.8, 0)),  # 15
    Part.ArcOfCircle(Part.Circle(App.Vector(-51.762101, -439.42, 0), App.Vector(0, 0, 1), 7.62), math.radians(53.861132), math.radians(90)),  # 16
    Part.LineSegment(App.Vector(-47.268249, -433.266164, 0), App.Vector(-26.86537, -448.16541, 0)),  # 17
    Part.ArcOfCircle(Part.Circle(App.Vector(-38.1, -463.55, 0), App.Vector(0, 0, 1), 19.05), math.radians(0), math.radians(53.861132)),  # 18
    Part.LineSegment(App.Vector(-19.05, -463.55, 0), App.Vector(-19.05, -550.212133, 0)),  # 19
    Part.ArcOfCircle(Part.Circle(App.Vector(-11.43, -550.212133, 0), App.Vector(0, 0, 1), 7.62), math.radians(180), math.radians(284.477512)),  # 20
    Part.ArcOfCircle(Part.Circle(App.Vector(-19.05, -520.7, 0), App.Vector(0, 0, 1), 38.1), math.radians(-75.522488), math.radians(0)),  # 21
    Part.LineSegment(App.Vector(19.05, -520.7, 0), App.Vector(19.05, -384.528048, 0)),  # 22
    Part.ArcOfCircle(Part.Circle(App.Vector(11.43, -384.528048, 0), App.Vector(0, 0, 1), 7.62), math.radians(0), math.radians(77.223434)),  # 23
    Part.LineSegment(App.Vector(13.11516, -377.09672, 0), App.Vector(-0.783912, -373.944905, 0)),  # 24
    Part.ArcOfCircle(Part.Circle(App.Vector(0.901248, -366.513578, 0), App.Vector(0, 0, 1), 7.62), math.radians(167.223434), math.radians(257.223434)),  # 25
], False)
sketch9.addConstraint([
    Sketcher.Constraint("Tangent", 0, 2, 1, 1),
    Sketcher.Constraint("Tangent", 1, 2, 2, 1),
    Sketcher.Constraint("Tangent", 2, 2, 3, 2),
    Sketcher.Constraint("Tangent", 3, 1, 4, 1),
    Sketcher.Constraint("Tangent", 4, 2, 5, 1),
    Sketcher.Constraint("Tangent", 5, 2, 6, 1),
    Sketcher.Constraint("Tangent", 6, 2, 7, 2),
    Sketcher.Constraint("Tangent", 7, 1, 8, 1),
    Sketcher.Constraint("Tangent", 8, 2, 9, 2),
    Sketcher.Constraint("Tangent", 9, 1, 10, 1),
    Sketcher.Constraint("Tangent", 10, 2, 11, 2),
    Sketcher.Constraint("Tangent", 11, 1, 12, 1),
    Sketcher.Constraint("Tangent", 12, 2, 13, 1),
    Sketcher.Constraint("Tangent", 13, 2, 14, 1),
    Sketcher.Constraint("Tangent", 14, 2, 15, 1),
    Sketcher.Constraint("Tangent", 15, 2, 16, 2),
    Sketcher.Constraint("Tangent", 16, 1, 17, 1),
    Sketcher.Constraint("Tangent", 17, 2, 18, 2),
    Sketcher.Constraint("Tangent", 18, 1, 19, 1),
    Sketcher.Constraint("Tangent", 19, 2, 20, 1),
    Sketcher.Constraint("Tangent", 20, 2, 21, 1),
    Sketcher.Constraint("Tangent", 21, 2, 22, 1),
    Sketcher.Constraint("Tangent", 22, 2, 23, 1),
    Sketcher.Constraint("Tangent", 23, 2, 24, 1),
    Sketcher.Constraint("Tangent", 24, 2, 25, 2),
    Sketcher.Constraint("Tangent", 25, 1, 0, 1),
    Sketcher.Constraint("Horizontal", 2),
    Sketcher.Constraint("Vertical", 13),
    Sketcher.Constraint("Horizontal", 15),
    Sketcher.Constraint("Vertical", 19),
    Sketcher.Constraint("Vertical", 22),
    Sketcher.Constraint("Coincident", 3, 3, -1, 1),
    Sketcher.Constraint("Coincident", 11, 3, 7, 3),
    Sketcher.Constraint("Equal", 1, 4),
    Sketcher.Constraint("Equal", 4, 6),
    Sketcher.Constraint("Equal", 6, 8),
    Sketcher.Constraint("Equal", 7, 9),
    Sketcher.Constraint("Equal", 8, 10),
    Sketcher.Constraint("Equal", 9, 11),
    Sketcher.Constraint("Equal", 10, 12),
    Sketcher.Constraint("Equal", 12, 14),
    Sketcher.Constraint("Equal", 14, 16),
    Sketcher.Constraint("Equal", 11, 18),
    Sketcher.Constraint("Equal", 16, 20),
    Sketcher.Constraint("Equal", 20, 23),
    Sketcher.Constraint("Equal", 23, 25),
    Sketcher.Constraint("Perpendicular", 0, 24),
    Sketcher.Constraint("Horizontal", 7, 3, 9, 3),
    Sketcher.Constraint("Vertical", 21, 3, 18, 1),
    Sketcher.Constraint("Radius", 3, Q("1 in")),
    Sketcher.Constraint("Radius", 1, Q("0.3 in")),
    Sketcher.Constraint("Radius", 21, Q("1.5 in")),
    Sketcher.Constraint("Radius", 7, Q("0.75 in")),
    Sketcher.Constraint("DistanceY", 7, 3, -1, 1, Q("5 in")),
    Sketcher.Constraint("DistanceX", 11, 1, -1, 1, Q("3 in")),
    Sketcher.Constraint("DistanceY", 14, 2, -1, 1, Q("17 in")),
    Sketcher.Constraint("DistanceX", 18, 3, -1, 1, Q("1.5 in")),
    Sketcher.Constraint("DistanceY", 21, 3, -1, 1, Q("20.5 in")),
    Sketcher.Constraint("DistanceX", 7, 3, 9, 3, Q("1.5 in")),
    Sketcher.Constraint("DistanceX", 14, 3, 20, 3, Q("2.5 in")),
    Sketcher.Constraint("DistanceY", 18, 3, -1, 1, Q("18.25 in")),
    Sketcher.Constraint("DistanceX", 15, 1, 15, 2, Q("23.167899 mm")),
    Sketcher.Constraint("DistanceX", 2, 2, 2, 1, Q("60.898779 mm")),
    Sketcher.Constraint("DistanceX", 6, 3, 4, 2, Q("32.833699 mm")),
    Sketcher.Constraint("Distance", 0, Q("338.504671 mm")),
    Sketcher.Constraint("Distance", 5, Q("94.14804 mm")),
    Sketcher.Constraint("DistanceY", 22, 1, 22, 2, Q("136.171952 mm")),
])
pocket8 = body.newObject("PartDesign::Pocket", "Pocket007")
pocket8.Profile = sketch9
pocket8.Length = Q("0.25 in")
pocket8.Reversed = True

# Sketch on YZ plane
sketch10 = body.newObject("Sketcher::SketchObject", "Sketch009")
sketch10.AttachmentSupport = (doc.getObject("YZ_Plane"), [""])
sketch10.MapMode = "FlatFace"
sketch10.AttachmentOffset = App.Placement(App.Vector(0, 0, 0.25 * 25.4), App.Rotation())
sketch10.addGeometry([
    Part.LineSegment(App.Vector(7.360531, -404.656786, 0), App.Vector(-20.854613, -448.49048, 0)),  # 0
    Part.ArcOfCircle(Part.Circle(App.Vector(-15.515145, -451.927423, 0), App.Vector(0, 0, 1), 6.35), math.radians(147.231175), math.radians(207.231175)),  # 1
    Part.ArcOfCircle(Part.Circle(App.Vector(-38.1, -463.55, 0), App.Vector(0, 0, 1), 19.05), math.radians(27.231175), math.radians(53.861132)),  # 2
    Part.LineSegment(App.Vector(-26.86537, -448.16541, 0), App.Vector(-38.347452, -439.780596, 0)),  # 3
    Part.ArcOfCircle(Part.Circle(App.Vector(-34.602575, -434.652399, 0), App.Vector(0, 0, 1), 6.35), math.radians(-126.138868), math.radians(-32.768825)),  # 4
    Part.LineSegment(App.Vector(-29.263106, -438.089342, 0), App.Vector(4.520707, -385.604432, 0)),  # 5
    Part.ArcOfCircle(Part.Circle(App.Vector(-0.818762, -382.167489, 0), App.Vector(0, 0, 1), 6.35), math.radians(-32.768825), math.radians(57.231175)),  # 6
    Part.LineSegment(App.Vector(2.61818, -376.82802, 0), App.Vector(-72.763058, -328.306156, 0)),  # 7
    Part.ArcOfCircle(Part.Circle(App.Vector(-76.2, -333.645625, 0), App.Vector(0, 0, 1), 6.35), math.radians(57.231175), math.radians(180)),  # 8
    Part.LineSegment(App.Vector(-82.55, -333.645625, 0), App.Vector(-82.55, -275.410767, 0)),  # 9
    Part.ArcOfCircle(Part.Circle(App.Vector(-76.2, -275.410767, 0), App.Vector(0, 0, 1), 6.35), math.radians(-180), math.radians(-47.768825)),  # 10
    Part.LineSegment(App.Vector(-71.932015, -280.112554, 0), App.Vector(28.484162, -188.961118, 0)),  # 11
    Part.ArcOfCircle(Part.Circle(App.Vector(24.216177, -184.25933, 0), App.Vector(0, 0, 1), 6.35), math.radians(-47.768825), math.radians(57.231175)),  # 12
    Part.LineSegment(App.Vector(27.65312, -178.919862, 0), App.Vector(-26.21548, -144.245387, 0)),  # 13
    Part.ArcOfCircle(Part.Circle(App.Vector(-29.652423, -149.584855, 0), App.Vector(0, 0, 1), 6.35), math.radians(57.231175), math.radians(117.231175)),  # 14
    Part.ArcOfCircle(Part.Circle(App.Vector(-41.275, -127, 0), App.Vector(0, 0, 1), 19.05), math.radians(-62.768825), math.radians(-2.768825)),  # 15
    Part.ArcOfCircle(Part.Circle(App.Vector(-15.904653, -128.22698, 0), App.Vector(0, 0, 1), 6.35), math.radians(177.231175), math.radians(237.231175)),  # 16
    Part.LineSegment(App.Vector(-19.341595, -133.566449, 0), App.Vector(29.975899, -165.31144, 0)),  # 17
    Part.ArcOfCircle(Part.Circle(App.Vector(33.412841, -159.971971, 0), App.Vector(0, 0, 1), 6.35), math.radians(-122.768825), math.radians(-12.776566)),  # 18
    Part.LineSegment(App.Vector(39.605614, -161.376271, 0), App.Vector(25.25914, -224.642276, 0)),  # 19
    Part.ArcOfCircle(Part.Circle(App.Vector(19.066367, -223.237975, 0), App.Vector(0, 0, 1), 6.35), math.radians(-12.776566), math.radians(132.231175)),  # 20
    Part.LineSegment(App.Vector(14.798382, -218.536188, 0), App.Vector(-76.422511, -301.340728, 0)),  # 21
    Part.ArcOfCircle(Part.Circle(App.Vector(-72.154526, -306.042516, 0), App.Vector(0, 0, 1), 6.35), math.radians(132.231175), math.radians(237.231175)),  # 22
    Part.LineSegment(App.Vector(-75.591469, -311.381985, 0), App.Vector(-12.37508, -352.073503, 0)),  # 23
    Part.ArcOfCircle(Part.Circle(App.Vector(-8.938137, -346.734034, 0), App.Vector(0, 0, 1), 6.35), math.radians(-122.768825), math.radians(-12.776566)),  # 24
    Part.LineSegment(App.Vector(-2.745364, -348.138334, 0), App.Vector(-6.53008, -364.828417, 0)),  # 25
    Part.ArcOfCircle(Part.Circle(App.Vector(0.901248, -366.513578, 0), App.Vector(0, 0, 1), 7.62), math.radians(167.223434), math.radians(257.223434)),  # 26
    Part.LineSegment(App.Vector(-0.783912, -373.944905, 0), App.Vector(13.11516, -377.09672, 0)),  # 27
    Part.ArcOfCircle(Part.Circle(App.Vector(11.43, -384.528048, 0), App.Vector(0, 0, 1), 7.62), math.radians(0), math.radians(77.223434)),  # 28
    Part.LineSegment(App.Vector(19.05, -384.528048, 0), App.Vector(19.05, -408.093729, 0)),  # 29
    Part.ArcOfCircle(Part.Circle(App.Vector(12.7, -408.093729, 0), App.Vector(0, 0, 1), 6.35), math.radians(0), math.radians(147.231175)),  # 30
    Part.ArcOfCircle(Part.Circle(App.Vector(-41.275, -127, 0), App.Vector(0, 0, 1), 19.05), math.radians(17.231175), math.radians(77.231175)),  # 31
    Part.ArcOfCircle(Part.Circle(App.Vector(-35.661146, -102.228148, 0), App.Vector(0, 0, 1), 6.35), math.radians(-102.768825), math.radians(-42.768825)),  # 32
    Part.LineSegment(App.Vector(-30.999614, -106.540065, 0), App.Vector(34.192673, -36.061917, 0)),  # 33
    Part.ArcOfCircle(Part.Circle(App.Vector(29.531141, -31.75, 0), App.Vector(0, 0, 1), 6.35), math.radians(-42.768825), math.radians(90)),  # 34
    Part.LineSegment(App.Vector(29.531141, -25.4, 0), App.Vector(60.898779, -25.4, 0)),  # 35
    Part.ArcOfCircle(Part.Circle(App.Vector(60.898779, -33.02, 0), App.Vector(0, 0, 1), 7.62), math.radians(-12.776566), math.radians(90)),  # 36
    Part.LineSegment(App.Vector(68.330107, -34.70516, 0), App.Vector(68.148406, -35.506436, 0)),  # 37
    Part.ArcOfCircle(Part.Circle(App.Vector(61.955633, -34.102136, 0), App.Vector(0, 0, 1), 6.35), math.radians(-12.776566), math.radians(137.231175)),  # 38
    Part.LineSegment(App.Vector(57.294101, -29.79022, 0), App.Vector(-21.676551, -115.163898, 0)),  # 39
    Part.ArcOfCircle(Part.Circle(App.Vector(-17.01502, -119.475815, 0), App.Vector(0, 0, 1), 6.35), math.radians(137.231175), math.radians(197.231175)),  # 40
], False)
sketch10.addConstraint([
    Sketcher.Constraint("Coincident", 0, 2, 1, 1),
    Sketcher.Constraint("Coincident", 1, 2, 2, 1),
    Sketcher.Constraint("Coincident", 2, 2, 3, 1),
    Sketcher.Constraint("Coincident", 3, 2, 4, 1),
    Sketcher.Constraint("Coincident", 4, 2, 5, 1),
    Sketcher.Constraint("Coincident", 5, 2, 6, 1),
    Sketcher.Constraint("Coincident", 6, 2, 7, 1),
    Sketcher.Constraint("Coincident", 7, 2, 8, 1),
    Sketcher.Constraint("Coincident", 8, 2, 9, 1),
    Sketcher.Constraint("Coincident", 9, 2, 10, 1),
    Sketcher.Constraint("Coincident", 10, 2, 11, 1),
    Sketcher.Constraint("Coincident", 11, 2, 12, 1),
    Sketcher.Constraint("Coincident", 12, 2, 13, 1),
    Sketcher.Constraint("Coincident", 13, 2, 14, 1),
    Sketcher.Constraint("Coincident", 14, 2, 15, 1),
    Sketcher.Constraint("Coincident", 15, 2, 16, 1),
    Sketcher.Constraint("Coincident", 16, 2, 17, 1),
    Sketcher.Constraint("Coincident", 17, 2, 18, 1),
    Sketcher.Constraint("Coincident", 18, 2, 19, 1),
    Sketcher.Constraint("Coincident", 19, 2, 20, 1),
    Sketcher.Constraint("Coincident", 20, 2, 21, 1),
    Sketcher.Constraint("Coincident", 21, 2, 22, 1),
    Sketcher.Constraint("Coincident", 22, 2, 23, 1),
    Sketcher.Constraint("Coincident", 23, 2, 24, 1),
    Sketcher.Constraint("Coincident", 24, 2, 25, 1),
    Sketcher.Constraint("Coincident", 25, 2, 26, 1),
    Sketcher.Constraint("Coincident", 26, 2, 27, 1),
    Sketcher.Constraint("Coincident", 27, 2, 28, 2),
    Sketcher.Constraint("Coincident", 28, 1, 29, 1),
    Sketcher.Constraint("Coincident", 29, 2, 30, 1),
    Sketcher.Constraint("Coincident", 30, 2, 0, 1),
    Sketcher.Constraint("Coincident", 31, 2, 32, 1),
    Sketcher.Constraint("Coincident", 32, 2, 33, 1),
    Sketcher.Constraint("Coincident", 33, 2, 34, 1),
    Sketcher.Constraint("Coincident", 34, 2, 35, 1),
    Sketcher.Constraint("Coincident", 35, 2, 36, 2),
    Sketcher.Constraint("Coincident", 36, 1, 37, 1),
    Sketcher.Constraint("Coincident", 37, 2, 38, 1),
    Sketcher.Constraint("Coincident", 38, 2, 39, 1),
    Sketcher.Constraint("Coincident", 39, 2, 40, 1),
    Sketcher.Constraint("Coincident", 40, 2, 31, 1),
    Sketcher.Constraint("Vertical", 9),
    Sketcher.Constraint("Vertical", 29),
    Sketcher.Constraint("Horizontal", 35),
    Sketcher.Constraint("Coincident", 31, 3, 15, 3),
    Sketcher.Constraint("Radius", 26, Q("0.3 in")),
    Sketcher.Constraint("Radius", 28, Q("0.3 in")),
    Sketcher.Constraint("Radius", 36, Q("0.3 in")),
    Sketcher.Constraint("Radius", 1, Q("0.25 in")),
    Sketcher.Constraint("Radius", 2, Q("0.75 in")),
    Sketcher.Constraint("Radius", 4, Q("0.25 in")),
    Sketcher.Constraint("Radius", 6, Q("0.25 in")),
    Sketcher.Constraint("Radius", 8, Q("0.25 in")),
    Sketcher.Constraint("Radius", 10, Q("0.25 in")),
    Sketcher.Constraint("Radius", 12, Q("0.25 in")),
    Sketcher.Constraint("Radius", 14, Q("0.25 in")),
    Sketcher.Constraint("Radius", 15, Q("0.75 in")),
    Sketcher.Constraint("Radius", 16, Q("0.25 in")),
    Sketcher.Constraint("Radius", 18, Q("0.25 in")),
    Sketcher.Constraint("Radius", 20, Q("0.25 in")),
    Sketcher.Constraint("Radius", 22, Q("0.25 in")),
    Sketcher.Constraint("Radius", 24, Q("0.25 in")),
    Sketcher.Constraint("Radius", 30, Q("0.25 in")),
    Sketcher.Constraint("Radius", 31, Q("0.75 in")),
    Sketcher.Constraint("Radius", 32, Q("0.25 in")),
    Sketcher.Constraint("Radius", 34, Q("0.25 in")),
    Sketcher.Constraint("Radius", 38, Q("0.25 in")),
    Sketcher.Constraint("Radius", 40, Q("0.25 in")),
    Sketcher.Constraint("DistanceX", 8, 3, -1, 1, Q("3 in")),
    Sketcher.Constraint("DistanceY", 15, 3, -1, 1, Q("5 in")),
    Sketcher.Constraint("DistanceY", 34, 2, -1, 1, Q("1 in")),
    Sketcher.Constraint("DistanceX", 2, 3, -1, 1, Q("1.5 in")),
    Sketcher.Constraint("DistanceX", -1, 1, 30, 3, Q("0.5 in")),
    Sketcher.Constraint("DistanceY", 2, 3, -1, 1, Q("18.25 in")),
    Sketcher.Constraint("DistanceX", 15, 3, -1, 1, Q("1.625 in")),
    Sketcher.Constraint("DistanceY", 9, 1, 9, 2, Q("58.234859 mm")),
    Sketcher.Constraint("DistanceY", 29, 2, 29, 1, Q("23.565681 mm")),
    Sketcher.Constraint("DistanceY", 4, 3, -1, 1, Q("434.652399 mm")),
    Sketcher.Constraint("DistanceX", -1, 1, 17, 2, Q("29.975899 mm")),
    Sketcher.Constraint("DistanceX", -1, 1, 38, 2, Q("57.294101 mm")),
    Sketcher.Constraint("Distance", 3, Q("14.217711 mm")),
    Sketcher.Constraint("Distance", 5, Q("62.418041 mm")),
    Sketcher.Constraint("Distance", 17, Q("58.651169 mm")),
    Sketcher.Constraint("Distance", 19, Q("64.872248 mm")),
    Sketcher.Constraint("Distance", 21, Q("123.19839 mm")),
    Sketcher.Constraint("Distance", 33, Q("96.006269 mm")),
    Sketcher.Constraint("Distance", 37, Q("0.821619 mm")),
    Sketcher.Constraint("DistanceX", 35, 1, 35, 2, Q("31.367637 mm")),
    Sketcher.Constraint("DistanceX", 6, 3, -1, 1, Q("0.818762 mm")),
    Sketcher.Constraint("DistanceY", 6, 3, -1, 1, Q("382.167489 mm")),
    Sketcher.Constraint("DistanceY", 12, 3, -1, 1, Q("184.25933 mm")),
    Sketcher.Constraint("DistanceY", 16, 3, -1, 1, Q("128.22698 mm")),
    Sketcher.Constraint("DistanceX", -1, 1, 18, 3, Q("33.412841 mm")),
    Sketcher.Constraint("DistanceY", 18, 3, -1, 1, Q("159.971971 mm")),
    Sketcher.Constraint("DistanceX", -1, 1, 26, 3, Q("0.901248 mm")),
    Sketcher.Constraint("DistanceY", 30, 3, -1, 1, Q("408.093729 mm")),
    Sketcher.Constraint("DistanceY", 32, 3, -1, 1, Q("102.228148 mm")),
    Sketcher.Constraint("DistanceX", -1, 1, 34, 3, Q("29.531141 mm")),
    Sketcher.Constraint("DistanceX", -1, 1, 36, 3, Q("60.898779 mm")),
    Sketcher.Constraint("DistanceX", 40, 3, -1, 1, Q("17.01502 mm")),
    Sketcher.Constraint("DistanceY", 0, 2, -1, 1, Q("448.49048 mm")),
    Sketcher.Constraint("DistanceX", 1, 2, -1, 1, Q("21.161358 mm")),
    Sketcher.Constraint("DistanceX", 2, 2, -1, 1, Q("26.86537 mm")),
    Sketcher.Constraint("DistanceX", 3, 2, -1, 1, Q("38.347452 mm")),
    Sketcher.Constraint("DistanceY", 4, 2, -1, 1, Q("438.089342 mm")),
    Sketcher.Constraint("DistanceX", -1, 1, 6, 2, Q("2.61818 mm")),
    Sketcher.Constraint("DistanceX", -1, 1, 11, 2, Q("28.484162 mm")),
    Sketcher.Constraint("DistanceY", 11, 2, -1, 1, Q("188.961118 mm")),
    Sketcher.Constraint("DistanceX", -1, 1, 12, 2, Q("27.65312 mm")),
    Sketcher.Constraint("DistanceX", 13, 2, -1, 1, Q("26.21548 mm")),
    Sketcher.Constraint("DistanceY", 14, 2, -1, 1, Q("143.938642 mm")),
    Sketcher.Constraint("DistanceX", 15, 2, -1, 1, Q("22.24724 mm")),
    Sketcher.Constraint("DistanceY", 18, 2, -1, 1, Q("161.376271 mm")),
    Sketcher.Constraint("DistanceX", -1, 1, 19, 2, Q("25.25914 mm")),
    Sketcher.Constraint("DistanceX", -1, 1, 20, 2, Q("14.798382 mm")),
    Sketcher.Constraint("DistanceX", 21, 2, -1, 1, Q("76.422511 mm")),
    Sketcher.Constraint("DistanceY", 21, 2, -1, 1, Q("301.340728 mm")),
    Sketcher.Constraint("DistanceX", 22, 2, -1, 1, Q("75.591469 mm")),
    Sketcher.Constraint("DistanceX", 23, 2, -1, 1, Q("12.37508 mm")),
    Sketcher.Constraint("DistanceX", 25, 2, -1, 1, Q("6.53008 mm")),
    Sketcher.Constraint("DistanceX", -1, 1, 27, 2, Q("13.11516 mm")),
    Sketcher.Constraint("DistanceY", 27, 2, -1, 1, Q("377.09672 mm")),
    Sketcher.Constraint("DistanceY", 29, 2, -1, 1, Q("408.093729 mm")),
    Sketcher.Constraint("DistanceX", -1, 1, 30, 2, Q("7.360531 mm")),
    Sketcher.Constraint("DistanceX", 31, 2, -1, 1, Q("37.064609 mm")),
    Sketcher.Constraint("DistanceX", -1, 1, 34, 2, Q("29.531141 mm")),
    Sketcher.Constraint("DistanceY", 36, 1, -1, 1, Q("34.70516 mm")),
    Sketcher.Constraint("DistanceY", 38, 2, -1, 1, Q("29.79022 mm")),
    Sketcher.Constraint("DistanceX", 39, 2, -1, 1, Q("21.676551 mm")),
    Sketcher.Constraint("DistanceY", 40, 2, -1, 1, Q("121.356861 mm")),
    Sketcher.Constraint("Distance", 0, Q("52.129522 mm")),
    Sketcher.Constraint("Distance", 7, Q("89.647657 mm")),
    Sketcher.Constraint("Distance", 11, Q("135.617082 mm")),
    Sketcher.Constraint("Distance", 13, Q("64.063603 mm")),
    Sketcher.Constraint("Distance", 23, Q("75.180526 mm")),
    Sketcher.Constraint("Distance", 25, Q("17.113823 mm")),
    Sketcher.Constraint("Distance", 27, Q("14.251952 mm")),
    Sketcher.Constraint("DistanceY", 8, 3, -1, 1, Q("333.645625 mm")),
    Sketcher.Constraint("DistanceY", 10, 3, -1, 1, Q("275.410767 mm")),
    Sketcher.Constraint("DistanceX", 22, 3, -1, 1, Q("72.154526 mm")),
    Sketcher.Constraint("DistanceX", 24, 3, -1, 1, Q("8.938137 mm")),
    Sketcher.Constraint("DistanceY", 26, 3, -1, 1, Q("366.513578 mm")),
    Sketcher.Constraint("DistanceX", -1, 1, 38, 3, Q("61.955633 mm")),
    Sketcher.Constraint("DistanceY", 8, 2, -1, 1, Q("333.645625 mm")),
    Sketcher.Constraint("DistanceX", 32, 2, -1, 1, Q("30.999614 mm")),
])
pad2 = body.newObject("PartDesign::Pad", "Pad001")
pad2.Profile = sketch10
pad2.Length = Q("0.15 in")
pad2.Reversed = True

doc.recompute()
